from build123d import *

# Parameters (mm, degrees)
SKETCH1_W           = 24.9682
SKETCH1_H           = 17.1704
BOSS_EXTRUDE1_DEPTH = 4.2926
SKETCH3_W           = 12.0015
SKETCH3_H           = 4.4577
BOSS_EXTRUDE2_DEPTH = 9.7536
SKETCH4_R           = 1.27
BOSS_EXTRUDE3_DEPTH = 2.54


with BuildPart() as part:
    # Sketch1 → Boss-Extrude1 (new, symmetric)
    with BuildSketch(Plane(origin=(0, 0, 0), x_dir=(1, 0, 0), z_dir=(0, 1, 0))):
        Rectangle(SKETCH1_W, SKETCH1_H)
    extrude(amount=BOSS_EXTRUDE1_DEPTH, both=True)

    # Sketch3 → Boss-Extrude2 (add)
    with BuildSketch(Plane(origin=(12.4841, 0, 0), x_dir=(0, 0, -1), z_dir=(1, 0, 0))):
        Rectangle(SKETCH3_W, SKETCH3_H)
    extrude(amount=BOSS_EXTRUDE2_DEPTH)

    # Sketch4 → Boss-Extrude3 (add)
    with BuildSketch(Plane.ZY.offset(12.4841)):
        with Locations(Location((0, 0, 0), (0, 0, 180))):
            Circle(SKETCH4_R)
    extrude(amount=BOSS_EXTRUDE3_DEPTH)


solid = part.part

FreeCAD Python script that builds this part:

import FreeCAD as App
import Part
import Sketcher
from FreeCAD import Vector
Q = App.Units.Quantity

doc = App.newDocument("Part")
params = doc.addObject("Spreadsheet::Sheet", "Params")
for row, (alias, value) in enumerate([
    ("sketch1_width", "0.983 in"),
    ("sketch1_height", "0.676 in"),
    ("pad1_length", "0.338 in"),
    ("pad2_length", "0.384 in"),
    ("sketch3_diameter", "0.1 in"),
    ("pad3_length", "0.1 in"),
], start=1):
    params.set(f"A{row}", alias)
    params.set(f"B{row}", "=" + value)
    params.setAlias(f"B{row}", alias)

body = doc.addObject("PartDesign::Body", "Body")

# Sketch on XZ plane
sketch1 = doc.addObject("Sketcher::SketchObject", "Sketch")
body.addObject(sketch1)
sketch1.AttachmentSupport = (doc.XZ_Plane, [""])
sketch1.MapMode = "FlatFace"
sketch1.addGeometry([
    Part.LineSegment(Vector(-12.4841, -8.5852, 0), Vector(-12.4841, 8.5852, 0)),
    Part.LineSegment(Vector(-12.4841, 8.5852, 0), Vector(12.4841, 8.5852, 0)),
    Part.LineSegment(Vector(12.4841, 8.5852, 0), Vector(12.4841, -8.5852, 0)),
    Part.LineSegment(Vector(12.4841, -8.5852, 0), Vector(-12.4841, -8.5852, 0)),
], False)
sketch1.addConstraint([
    Sketcher.Constraint("Coincident", 0, 2, 1, 1),
    Sketcher.Constraint("Coincident", 1, 2, 2, 1),
    Sketcher.Constraint("Coincident", 2, 2, 3, 1),
    Sketcher.Constraint("Coincident", 3, 2, 0, 1),
    Sketcher.Constraint("Vertical", 0),
    Sketcher.Constraint("Horizontal", 1),
    Sketcher.Constraint("Vertical", 2),
    Sketcher.Constraint("Horizontal", 3),
    Sketcher.Constraint("Symmetric", 0, 2, 2, 2, -1, 1),
    Sketcher.Constraint("DistanceX", 1, 1, 1, 2, Q("0.983 in")),
    Sketcher.Constraint("DistanceY", 0, 1, 0, 2, Q("0.676 in")),
])
sketch1.setExpression("Constraints[9]", "Params.sketch1_width")
sketch1.setExpression("Constraints[10]", "Params.sketch1_height")
pad1 = doc.addObject("PartDesign::Pad", "Pad")
body.addObject(pad1)
pad1.Profile = sketch1
pad1.setExpression("Length", "Params.pad1_length")
pad1.Midplane = True

# Sketch on YZ plane
sketch2 = doc.addObject("Sketcher::SketchObject", "Sketch001")
body.addObject(sketch2)
sketch2.AttachmentSupport = (doc.YZ_Plane, [""])
sketch2.MapMode = "FlatFace"
sketch2.AttachmentOffset = App.Placement(Vector(0, 0, 0.4915 * 25.4), App.Rotation())
sketch2.addGeometry([
    Part.LineSegment(Vector(2.22885, 6.00075, 0), Vector(-2.22885, 6.00075, 0)),
    Part.LineSegment(Vector(-2.22885, 6.00075, 0), Vector(-2.22885, -6.00075, 0)),
    Part.LineSegment(Vector(-2.22885, -6.00075, 0), Vector(2.22885, -6.00075, 0)),
    Part.LineSegment(Vector(2.22885, -6.00075, 0), Vector(2.22885, 6.00075, 0)),
], False)
sketch2.addConstraint([
    Sketcher.Constraint("Coincident", 0, 2, 1, 1),
    Sketcher.Constraint("Coincident", 1, 2, 2, 1),
    Sketcher.Constraint("Coincident", 2, 2, 3, 1),
    Sketcher.Constraint("Coincident", 3, 2, 0, 1),
    Sketcher.Constraint("Horizontal", 0),
    Sketcher.Constraint("Vertical", 1),
    Sketcher.Constraint("Horizontal", 2),
    Sketcher.Constraint("Vertical", 3),
    Sketcher.Constraint("Symmetric", 0, 2, 2, 2, -1, 1),
    Sketcher.Constraint("DistanceX", 0, 2, 0, 1, Q("0.1755 in")),
    Sketcher.Constraint("DistanceY", 1, 2, 1, 1, Q("0.4725 in")),
])
pad2 = doc.addObject("PartDesign::Pad", "Pad001")
body.addObject(pad2)
pad2.Profile = sketch2
pad2.setExpression("Length", "Params.pad2_length")

# Sketch on YZ plane
sketch3 = doc.addObject("Sketcher::SketchObject", "Sketch002")
body.addObject(sketch3)
sketch3.AttachmentSupport = (doc.YZ_Plane, [""])
sketch3.MapMode = "FlatFace"
sketch3.AttachmentOffset = App.Placement(Vector(0, 0, -0.4915 * 25.4), App.Rotation())
sketch3.addGeometry(Part.Circle(Vector(0, 0, 0), Vector(0, 0, 1), 1.27), False)
sketch3.addConstraint([
    Sketcher.Constraint("Coincident", 0, 3, -1, 1),
    Sketcher.Constraint("Diameter", 0, Q("0.1 in")),
])
sketch3.setExpression("Constraints[1]", "Params.sketch3_diameter")
pad3 = doc.addObject("PartDesign::Pad", "Pad002")
body.addObject(pad3)
pad3.Profile = sketch3
pad3.setExpression("Length", "Params.pad3_length")
pad3.Reversed = True

doc.recompute()
